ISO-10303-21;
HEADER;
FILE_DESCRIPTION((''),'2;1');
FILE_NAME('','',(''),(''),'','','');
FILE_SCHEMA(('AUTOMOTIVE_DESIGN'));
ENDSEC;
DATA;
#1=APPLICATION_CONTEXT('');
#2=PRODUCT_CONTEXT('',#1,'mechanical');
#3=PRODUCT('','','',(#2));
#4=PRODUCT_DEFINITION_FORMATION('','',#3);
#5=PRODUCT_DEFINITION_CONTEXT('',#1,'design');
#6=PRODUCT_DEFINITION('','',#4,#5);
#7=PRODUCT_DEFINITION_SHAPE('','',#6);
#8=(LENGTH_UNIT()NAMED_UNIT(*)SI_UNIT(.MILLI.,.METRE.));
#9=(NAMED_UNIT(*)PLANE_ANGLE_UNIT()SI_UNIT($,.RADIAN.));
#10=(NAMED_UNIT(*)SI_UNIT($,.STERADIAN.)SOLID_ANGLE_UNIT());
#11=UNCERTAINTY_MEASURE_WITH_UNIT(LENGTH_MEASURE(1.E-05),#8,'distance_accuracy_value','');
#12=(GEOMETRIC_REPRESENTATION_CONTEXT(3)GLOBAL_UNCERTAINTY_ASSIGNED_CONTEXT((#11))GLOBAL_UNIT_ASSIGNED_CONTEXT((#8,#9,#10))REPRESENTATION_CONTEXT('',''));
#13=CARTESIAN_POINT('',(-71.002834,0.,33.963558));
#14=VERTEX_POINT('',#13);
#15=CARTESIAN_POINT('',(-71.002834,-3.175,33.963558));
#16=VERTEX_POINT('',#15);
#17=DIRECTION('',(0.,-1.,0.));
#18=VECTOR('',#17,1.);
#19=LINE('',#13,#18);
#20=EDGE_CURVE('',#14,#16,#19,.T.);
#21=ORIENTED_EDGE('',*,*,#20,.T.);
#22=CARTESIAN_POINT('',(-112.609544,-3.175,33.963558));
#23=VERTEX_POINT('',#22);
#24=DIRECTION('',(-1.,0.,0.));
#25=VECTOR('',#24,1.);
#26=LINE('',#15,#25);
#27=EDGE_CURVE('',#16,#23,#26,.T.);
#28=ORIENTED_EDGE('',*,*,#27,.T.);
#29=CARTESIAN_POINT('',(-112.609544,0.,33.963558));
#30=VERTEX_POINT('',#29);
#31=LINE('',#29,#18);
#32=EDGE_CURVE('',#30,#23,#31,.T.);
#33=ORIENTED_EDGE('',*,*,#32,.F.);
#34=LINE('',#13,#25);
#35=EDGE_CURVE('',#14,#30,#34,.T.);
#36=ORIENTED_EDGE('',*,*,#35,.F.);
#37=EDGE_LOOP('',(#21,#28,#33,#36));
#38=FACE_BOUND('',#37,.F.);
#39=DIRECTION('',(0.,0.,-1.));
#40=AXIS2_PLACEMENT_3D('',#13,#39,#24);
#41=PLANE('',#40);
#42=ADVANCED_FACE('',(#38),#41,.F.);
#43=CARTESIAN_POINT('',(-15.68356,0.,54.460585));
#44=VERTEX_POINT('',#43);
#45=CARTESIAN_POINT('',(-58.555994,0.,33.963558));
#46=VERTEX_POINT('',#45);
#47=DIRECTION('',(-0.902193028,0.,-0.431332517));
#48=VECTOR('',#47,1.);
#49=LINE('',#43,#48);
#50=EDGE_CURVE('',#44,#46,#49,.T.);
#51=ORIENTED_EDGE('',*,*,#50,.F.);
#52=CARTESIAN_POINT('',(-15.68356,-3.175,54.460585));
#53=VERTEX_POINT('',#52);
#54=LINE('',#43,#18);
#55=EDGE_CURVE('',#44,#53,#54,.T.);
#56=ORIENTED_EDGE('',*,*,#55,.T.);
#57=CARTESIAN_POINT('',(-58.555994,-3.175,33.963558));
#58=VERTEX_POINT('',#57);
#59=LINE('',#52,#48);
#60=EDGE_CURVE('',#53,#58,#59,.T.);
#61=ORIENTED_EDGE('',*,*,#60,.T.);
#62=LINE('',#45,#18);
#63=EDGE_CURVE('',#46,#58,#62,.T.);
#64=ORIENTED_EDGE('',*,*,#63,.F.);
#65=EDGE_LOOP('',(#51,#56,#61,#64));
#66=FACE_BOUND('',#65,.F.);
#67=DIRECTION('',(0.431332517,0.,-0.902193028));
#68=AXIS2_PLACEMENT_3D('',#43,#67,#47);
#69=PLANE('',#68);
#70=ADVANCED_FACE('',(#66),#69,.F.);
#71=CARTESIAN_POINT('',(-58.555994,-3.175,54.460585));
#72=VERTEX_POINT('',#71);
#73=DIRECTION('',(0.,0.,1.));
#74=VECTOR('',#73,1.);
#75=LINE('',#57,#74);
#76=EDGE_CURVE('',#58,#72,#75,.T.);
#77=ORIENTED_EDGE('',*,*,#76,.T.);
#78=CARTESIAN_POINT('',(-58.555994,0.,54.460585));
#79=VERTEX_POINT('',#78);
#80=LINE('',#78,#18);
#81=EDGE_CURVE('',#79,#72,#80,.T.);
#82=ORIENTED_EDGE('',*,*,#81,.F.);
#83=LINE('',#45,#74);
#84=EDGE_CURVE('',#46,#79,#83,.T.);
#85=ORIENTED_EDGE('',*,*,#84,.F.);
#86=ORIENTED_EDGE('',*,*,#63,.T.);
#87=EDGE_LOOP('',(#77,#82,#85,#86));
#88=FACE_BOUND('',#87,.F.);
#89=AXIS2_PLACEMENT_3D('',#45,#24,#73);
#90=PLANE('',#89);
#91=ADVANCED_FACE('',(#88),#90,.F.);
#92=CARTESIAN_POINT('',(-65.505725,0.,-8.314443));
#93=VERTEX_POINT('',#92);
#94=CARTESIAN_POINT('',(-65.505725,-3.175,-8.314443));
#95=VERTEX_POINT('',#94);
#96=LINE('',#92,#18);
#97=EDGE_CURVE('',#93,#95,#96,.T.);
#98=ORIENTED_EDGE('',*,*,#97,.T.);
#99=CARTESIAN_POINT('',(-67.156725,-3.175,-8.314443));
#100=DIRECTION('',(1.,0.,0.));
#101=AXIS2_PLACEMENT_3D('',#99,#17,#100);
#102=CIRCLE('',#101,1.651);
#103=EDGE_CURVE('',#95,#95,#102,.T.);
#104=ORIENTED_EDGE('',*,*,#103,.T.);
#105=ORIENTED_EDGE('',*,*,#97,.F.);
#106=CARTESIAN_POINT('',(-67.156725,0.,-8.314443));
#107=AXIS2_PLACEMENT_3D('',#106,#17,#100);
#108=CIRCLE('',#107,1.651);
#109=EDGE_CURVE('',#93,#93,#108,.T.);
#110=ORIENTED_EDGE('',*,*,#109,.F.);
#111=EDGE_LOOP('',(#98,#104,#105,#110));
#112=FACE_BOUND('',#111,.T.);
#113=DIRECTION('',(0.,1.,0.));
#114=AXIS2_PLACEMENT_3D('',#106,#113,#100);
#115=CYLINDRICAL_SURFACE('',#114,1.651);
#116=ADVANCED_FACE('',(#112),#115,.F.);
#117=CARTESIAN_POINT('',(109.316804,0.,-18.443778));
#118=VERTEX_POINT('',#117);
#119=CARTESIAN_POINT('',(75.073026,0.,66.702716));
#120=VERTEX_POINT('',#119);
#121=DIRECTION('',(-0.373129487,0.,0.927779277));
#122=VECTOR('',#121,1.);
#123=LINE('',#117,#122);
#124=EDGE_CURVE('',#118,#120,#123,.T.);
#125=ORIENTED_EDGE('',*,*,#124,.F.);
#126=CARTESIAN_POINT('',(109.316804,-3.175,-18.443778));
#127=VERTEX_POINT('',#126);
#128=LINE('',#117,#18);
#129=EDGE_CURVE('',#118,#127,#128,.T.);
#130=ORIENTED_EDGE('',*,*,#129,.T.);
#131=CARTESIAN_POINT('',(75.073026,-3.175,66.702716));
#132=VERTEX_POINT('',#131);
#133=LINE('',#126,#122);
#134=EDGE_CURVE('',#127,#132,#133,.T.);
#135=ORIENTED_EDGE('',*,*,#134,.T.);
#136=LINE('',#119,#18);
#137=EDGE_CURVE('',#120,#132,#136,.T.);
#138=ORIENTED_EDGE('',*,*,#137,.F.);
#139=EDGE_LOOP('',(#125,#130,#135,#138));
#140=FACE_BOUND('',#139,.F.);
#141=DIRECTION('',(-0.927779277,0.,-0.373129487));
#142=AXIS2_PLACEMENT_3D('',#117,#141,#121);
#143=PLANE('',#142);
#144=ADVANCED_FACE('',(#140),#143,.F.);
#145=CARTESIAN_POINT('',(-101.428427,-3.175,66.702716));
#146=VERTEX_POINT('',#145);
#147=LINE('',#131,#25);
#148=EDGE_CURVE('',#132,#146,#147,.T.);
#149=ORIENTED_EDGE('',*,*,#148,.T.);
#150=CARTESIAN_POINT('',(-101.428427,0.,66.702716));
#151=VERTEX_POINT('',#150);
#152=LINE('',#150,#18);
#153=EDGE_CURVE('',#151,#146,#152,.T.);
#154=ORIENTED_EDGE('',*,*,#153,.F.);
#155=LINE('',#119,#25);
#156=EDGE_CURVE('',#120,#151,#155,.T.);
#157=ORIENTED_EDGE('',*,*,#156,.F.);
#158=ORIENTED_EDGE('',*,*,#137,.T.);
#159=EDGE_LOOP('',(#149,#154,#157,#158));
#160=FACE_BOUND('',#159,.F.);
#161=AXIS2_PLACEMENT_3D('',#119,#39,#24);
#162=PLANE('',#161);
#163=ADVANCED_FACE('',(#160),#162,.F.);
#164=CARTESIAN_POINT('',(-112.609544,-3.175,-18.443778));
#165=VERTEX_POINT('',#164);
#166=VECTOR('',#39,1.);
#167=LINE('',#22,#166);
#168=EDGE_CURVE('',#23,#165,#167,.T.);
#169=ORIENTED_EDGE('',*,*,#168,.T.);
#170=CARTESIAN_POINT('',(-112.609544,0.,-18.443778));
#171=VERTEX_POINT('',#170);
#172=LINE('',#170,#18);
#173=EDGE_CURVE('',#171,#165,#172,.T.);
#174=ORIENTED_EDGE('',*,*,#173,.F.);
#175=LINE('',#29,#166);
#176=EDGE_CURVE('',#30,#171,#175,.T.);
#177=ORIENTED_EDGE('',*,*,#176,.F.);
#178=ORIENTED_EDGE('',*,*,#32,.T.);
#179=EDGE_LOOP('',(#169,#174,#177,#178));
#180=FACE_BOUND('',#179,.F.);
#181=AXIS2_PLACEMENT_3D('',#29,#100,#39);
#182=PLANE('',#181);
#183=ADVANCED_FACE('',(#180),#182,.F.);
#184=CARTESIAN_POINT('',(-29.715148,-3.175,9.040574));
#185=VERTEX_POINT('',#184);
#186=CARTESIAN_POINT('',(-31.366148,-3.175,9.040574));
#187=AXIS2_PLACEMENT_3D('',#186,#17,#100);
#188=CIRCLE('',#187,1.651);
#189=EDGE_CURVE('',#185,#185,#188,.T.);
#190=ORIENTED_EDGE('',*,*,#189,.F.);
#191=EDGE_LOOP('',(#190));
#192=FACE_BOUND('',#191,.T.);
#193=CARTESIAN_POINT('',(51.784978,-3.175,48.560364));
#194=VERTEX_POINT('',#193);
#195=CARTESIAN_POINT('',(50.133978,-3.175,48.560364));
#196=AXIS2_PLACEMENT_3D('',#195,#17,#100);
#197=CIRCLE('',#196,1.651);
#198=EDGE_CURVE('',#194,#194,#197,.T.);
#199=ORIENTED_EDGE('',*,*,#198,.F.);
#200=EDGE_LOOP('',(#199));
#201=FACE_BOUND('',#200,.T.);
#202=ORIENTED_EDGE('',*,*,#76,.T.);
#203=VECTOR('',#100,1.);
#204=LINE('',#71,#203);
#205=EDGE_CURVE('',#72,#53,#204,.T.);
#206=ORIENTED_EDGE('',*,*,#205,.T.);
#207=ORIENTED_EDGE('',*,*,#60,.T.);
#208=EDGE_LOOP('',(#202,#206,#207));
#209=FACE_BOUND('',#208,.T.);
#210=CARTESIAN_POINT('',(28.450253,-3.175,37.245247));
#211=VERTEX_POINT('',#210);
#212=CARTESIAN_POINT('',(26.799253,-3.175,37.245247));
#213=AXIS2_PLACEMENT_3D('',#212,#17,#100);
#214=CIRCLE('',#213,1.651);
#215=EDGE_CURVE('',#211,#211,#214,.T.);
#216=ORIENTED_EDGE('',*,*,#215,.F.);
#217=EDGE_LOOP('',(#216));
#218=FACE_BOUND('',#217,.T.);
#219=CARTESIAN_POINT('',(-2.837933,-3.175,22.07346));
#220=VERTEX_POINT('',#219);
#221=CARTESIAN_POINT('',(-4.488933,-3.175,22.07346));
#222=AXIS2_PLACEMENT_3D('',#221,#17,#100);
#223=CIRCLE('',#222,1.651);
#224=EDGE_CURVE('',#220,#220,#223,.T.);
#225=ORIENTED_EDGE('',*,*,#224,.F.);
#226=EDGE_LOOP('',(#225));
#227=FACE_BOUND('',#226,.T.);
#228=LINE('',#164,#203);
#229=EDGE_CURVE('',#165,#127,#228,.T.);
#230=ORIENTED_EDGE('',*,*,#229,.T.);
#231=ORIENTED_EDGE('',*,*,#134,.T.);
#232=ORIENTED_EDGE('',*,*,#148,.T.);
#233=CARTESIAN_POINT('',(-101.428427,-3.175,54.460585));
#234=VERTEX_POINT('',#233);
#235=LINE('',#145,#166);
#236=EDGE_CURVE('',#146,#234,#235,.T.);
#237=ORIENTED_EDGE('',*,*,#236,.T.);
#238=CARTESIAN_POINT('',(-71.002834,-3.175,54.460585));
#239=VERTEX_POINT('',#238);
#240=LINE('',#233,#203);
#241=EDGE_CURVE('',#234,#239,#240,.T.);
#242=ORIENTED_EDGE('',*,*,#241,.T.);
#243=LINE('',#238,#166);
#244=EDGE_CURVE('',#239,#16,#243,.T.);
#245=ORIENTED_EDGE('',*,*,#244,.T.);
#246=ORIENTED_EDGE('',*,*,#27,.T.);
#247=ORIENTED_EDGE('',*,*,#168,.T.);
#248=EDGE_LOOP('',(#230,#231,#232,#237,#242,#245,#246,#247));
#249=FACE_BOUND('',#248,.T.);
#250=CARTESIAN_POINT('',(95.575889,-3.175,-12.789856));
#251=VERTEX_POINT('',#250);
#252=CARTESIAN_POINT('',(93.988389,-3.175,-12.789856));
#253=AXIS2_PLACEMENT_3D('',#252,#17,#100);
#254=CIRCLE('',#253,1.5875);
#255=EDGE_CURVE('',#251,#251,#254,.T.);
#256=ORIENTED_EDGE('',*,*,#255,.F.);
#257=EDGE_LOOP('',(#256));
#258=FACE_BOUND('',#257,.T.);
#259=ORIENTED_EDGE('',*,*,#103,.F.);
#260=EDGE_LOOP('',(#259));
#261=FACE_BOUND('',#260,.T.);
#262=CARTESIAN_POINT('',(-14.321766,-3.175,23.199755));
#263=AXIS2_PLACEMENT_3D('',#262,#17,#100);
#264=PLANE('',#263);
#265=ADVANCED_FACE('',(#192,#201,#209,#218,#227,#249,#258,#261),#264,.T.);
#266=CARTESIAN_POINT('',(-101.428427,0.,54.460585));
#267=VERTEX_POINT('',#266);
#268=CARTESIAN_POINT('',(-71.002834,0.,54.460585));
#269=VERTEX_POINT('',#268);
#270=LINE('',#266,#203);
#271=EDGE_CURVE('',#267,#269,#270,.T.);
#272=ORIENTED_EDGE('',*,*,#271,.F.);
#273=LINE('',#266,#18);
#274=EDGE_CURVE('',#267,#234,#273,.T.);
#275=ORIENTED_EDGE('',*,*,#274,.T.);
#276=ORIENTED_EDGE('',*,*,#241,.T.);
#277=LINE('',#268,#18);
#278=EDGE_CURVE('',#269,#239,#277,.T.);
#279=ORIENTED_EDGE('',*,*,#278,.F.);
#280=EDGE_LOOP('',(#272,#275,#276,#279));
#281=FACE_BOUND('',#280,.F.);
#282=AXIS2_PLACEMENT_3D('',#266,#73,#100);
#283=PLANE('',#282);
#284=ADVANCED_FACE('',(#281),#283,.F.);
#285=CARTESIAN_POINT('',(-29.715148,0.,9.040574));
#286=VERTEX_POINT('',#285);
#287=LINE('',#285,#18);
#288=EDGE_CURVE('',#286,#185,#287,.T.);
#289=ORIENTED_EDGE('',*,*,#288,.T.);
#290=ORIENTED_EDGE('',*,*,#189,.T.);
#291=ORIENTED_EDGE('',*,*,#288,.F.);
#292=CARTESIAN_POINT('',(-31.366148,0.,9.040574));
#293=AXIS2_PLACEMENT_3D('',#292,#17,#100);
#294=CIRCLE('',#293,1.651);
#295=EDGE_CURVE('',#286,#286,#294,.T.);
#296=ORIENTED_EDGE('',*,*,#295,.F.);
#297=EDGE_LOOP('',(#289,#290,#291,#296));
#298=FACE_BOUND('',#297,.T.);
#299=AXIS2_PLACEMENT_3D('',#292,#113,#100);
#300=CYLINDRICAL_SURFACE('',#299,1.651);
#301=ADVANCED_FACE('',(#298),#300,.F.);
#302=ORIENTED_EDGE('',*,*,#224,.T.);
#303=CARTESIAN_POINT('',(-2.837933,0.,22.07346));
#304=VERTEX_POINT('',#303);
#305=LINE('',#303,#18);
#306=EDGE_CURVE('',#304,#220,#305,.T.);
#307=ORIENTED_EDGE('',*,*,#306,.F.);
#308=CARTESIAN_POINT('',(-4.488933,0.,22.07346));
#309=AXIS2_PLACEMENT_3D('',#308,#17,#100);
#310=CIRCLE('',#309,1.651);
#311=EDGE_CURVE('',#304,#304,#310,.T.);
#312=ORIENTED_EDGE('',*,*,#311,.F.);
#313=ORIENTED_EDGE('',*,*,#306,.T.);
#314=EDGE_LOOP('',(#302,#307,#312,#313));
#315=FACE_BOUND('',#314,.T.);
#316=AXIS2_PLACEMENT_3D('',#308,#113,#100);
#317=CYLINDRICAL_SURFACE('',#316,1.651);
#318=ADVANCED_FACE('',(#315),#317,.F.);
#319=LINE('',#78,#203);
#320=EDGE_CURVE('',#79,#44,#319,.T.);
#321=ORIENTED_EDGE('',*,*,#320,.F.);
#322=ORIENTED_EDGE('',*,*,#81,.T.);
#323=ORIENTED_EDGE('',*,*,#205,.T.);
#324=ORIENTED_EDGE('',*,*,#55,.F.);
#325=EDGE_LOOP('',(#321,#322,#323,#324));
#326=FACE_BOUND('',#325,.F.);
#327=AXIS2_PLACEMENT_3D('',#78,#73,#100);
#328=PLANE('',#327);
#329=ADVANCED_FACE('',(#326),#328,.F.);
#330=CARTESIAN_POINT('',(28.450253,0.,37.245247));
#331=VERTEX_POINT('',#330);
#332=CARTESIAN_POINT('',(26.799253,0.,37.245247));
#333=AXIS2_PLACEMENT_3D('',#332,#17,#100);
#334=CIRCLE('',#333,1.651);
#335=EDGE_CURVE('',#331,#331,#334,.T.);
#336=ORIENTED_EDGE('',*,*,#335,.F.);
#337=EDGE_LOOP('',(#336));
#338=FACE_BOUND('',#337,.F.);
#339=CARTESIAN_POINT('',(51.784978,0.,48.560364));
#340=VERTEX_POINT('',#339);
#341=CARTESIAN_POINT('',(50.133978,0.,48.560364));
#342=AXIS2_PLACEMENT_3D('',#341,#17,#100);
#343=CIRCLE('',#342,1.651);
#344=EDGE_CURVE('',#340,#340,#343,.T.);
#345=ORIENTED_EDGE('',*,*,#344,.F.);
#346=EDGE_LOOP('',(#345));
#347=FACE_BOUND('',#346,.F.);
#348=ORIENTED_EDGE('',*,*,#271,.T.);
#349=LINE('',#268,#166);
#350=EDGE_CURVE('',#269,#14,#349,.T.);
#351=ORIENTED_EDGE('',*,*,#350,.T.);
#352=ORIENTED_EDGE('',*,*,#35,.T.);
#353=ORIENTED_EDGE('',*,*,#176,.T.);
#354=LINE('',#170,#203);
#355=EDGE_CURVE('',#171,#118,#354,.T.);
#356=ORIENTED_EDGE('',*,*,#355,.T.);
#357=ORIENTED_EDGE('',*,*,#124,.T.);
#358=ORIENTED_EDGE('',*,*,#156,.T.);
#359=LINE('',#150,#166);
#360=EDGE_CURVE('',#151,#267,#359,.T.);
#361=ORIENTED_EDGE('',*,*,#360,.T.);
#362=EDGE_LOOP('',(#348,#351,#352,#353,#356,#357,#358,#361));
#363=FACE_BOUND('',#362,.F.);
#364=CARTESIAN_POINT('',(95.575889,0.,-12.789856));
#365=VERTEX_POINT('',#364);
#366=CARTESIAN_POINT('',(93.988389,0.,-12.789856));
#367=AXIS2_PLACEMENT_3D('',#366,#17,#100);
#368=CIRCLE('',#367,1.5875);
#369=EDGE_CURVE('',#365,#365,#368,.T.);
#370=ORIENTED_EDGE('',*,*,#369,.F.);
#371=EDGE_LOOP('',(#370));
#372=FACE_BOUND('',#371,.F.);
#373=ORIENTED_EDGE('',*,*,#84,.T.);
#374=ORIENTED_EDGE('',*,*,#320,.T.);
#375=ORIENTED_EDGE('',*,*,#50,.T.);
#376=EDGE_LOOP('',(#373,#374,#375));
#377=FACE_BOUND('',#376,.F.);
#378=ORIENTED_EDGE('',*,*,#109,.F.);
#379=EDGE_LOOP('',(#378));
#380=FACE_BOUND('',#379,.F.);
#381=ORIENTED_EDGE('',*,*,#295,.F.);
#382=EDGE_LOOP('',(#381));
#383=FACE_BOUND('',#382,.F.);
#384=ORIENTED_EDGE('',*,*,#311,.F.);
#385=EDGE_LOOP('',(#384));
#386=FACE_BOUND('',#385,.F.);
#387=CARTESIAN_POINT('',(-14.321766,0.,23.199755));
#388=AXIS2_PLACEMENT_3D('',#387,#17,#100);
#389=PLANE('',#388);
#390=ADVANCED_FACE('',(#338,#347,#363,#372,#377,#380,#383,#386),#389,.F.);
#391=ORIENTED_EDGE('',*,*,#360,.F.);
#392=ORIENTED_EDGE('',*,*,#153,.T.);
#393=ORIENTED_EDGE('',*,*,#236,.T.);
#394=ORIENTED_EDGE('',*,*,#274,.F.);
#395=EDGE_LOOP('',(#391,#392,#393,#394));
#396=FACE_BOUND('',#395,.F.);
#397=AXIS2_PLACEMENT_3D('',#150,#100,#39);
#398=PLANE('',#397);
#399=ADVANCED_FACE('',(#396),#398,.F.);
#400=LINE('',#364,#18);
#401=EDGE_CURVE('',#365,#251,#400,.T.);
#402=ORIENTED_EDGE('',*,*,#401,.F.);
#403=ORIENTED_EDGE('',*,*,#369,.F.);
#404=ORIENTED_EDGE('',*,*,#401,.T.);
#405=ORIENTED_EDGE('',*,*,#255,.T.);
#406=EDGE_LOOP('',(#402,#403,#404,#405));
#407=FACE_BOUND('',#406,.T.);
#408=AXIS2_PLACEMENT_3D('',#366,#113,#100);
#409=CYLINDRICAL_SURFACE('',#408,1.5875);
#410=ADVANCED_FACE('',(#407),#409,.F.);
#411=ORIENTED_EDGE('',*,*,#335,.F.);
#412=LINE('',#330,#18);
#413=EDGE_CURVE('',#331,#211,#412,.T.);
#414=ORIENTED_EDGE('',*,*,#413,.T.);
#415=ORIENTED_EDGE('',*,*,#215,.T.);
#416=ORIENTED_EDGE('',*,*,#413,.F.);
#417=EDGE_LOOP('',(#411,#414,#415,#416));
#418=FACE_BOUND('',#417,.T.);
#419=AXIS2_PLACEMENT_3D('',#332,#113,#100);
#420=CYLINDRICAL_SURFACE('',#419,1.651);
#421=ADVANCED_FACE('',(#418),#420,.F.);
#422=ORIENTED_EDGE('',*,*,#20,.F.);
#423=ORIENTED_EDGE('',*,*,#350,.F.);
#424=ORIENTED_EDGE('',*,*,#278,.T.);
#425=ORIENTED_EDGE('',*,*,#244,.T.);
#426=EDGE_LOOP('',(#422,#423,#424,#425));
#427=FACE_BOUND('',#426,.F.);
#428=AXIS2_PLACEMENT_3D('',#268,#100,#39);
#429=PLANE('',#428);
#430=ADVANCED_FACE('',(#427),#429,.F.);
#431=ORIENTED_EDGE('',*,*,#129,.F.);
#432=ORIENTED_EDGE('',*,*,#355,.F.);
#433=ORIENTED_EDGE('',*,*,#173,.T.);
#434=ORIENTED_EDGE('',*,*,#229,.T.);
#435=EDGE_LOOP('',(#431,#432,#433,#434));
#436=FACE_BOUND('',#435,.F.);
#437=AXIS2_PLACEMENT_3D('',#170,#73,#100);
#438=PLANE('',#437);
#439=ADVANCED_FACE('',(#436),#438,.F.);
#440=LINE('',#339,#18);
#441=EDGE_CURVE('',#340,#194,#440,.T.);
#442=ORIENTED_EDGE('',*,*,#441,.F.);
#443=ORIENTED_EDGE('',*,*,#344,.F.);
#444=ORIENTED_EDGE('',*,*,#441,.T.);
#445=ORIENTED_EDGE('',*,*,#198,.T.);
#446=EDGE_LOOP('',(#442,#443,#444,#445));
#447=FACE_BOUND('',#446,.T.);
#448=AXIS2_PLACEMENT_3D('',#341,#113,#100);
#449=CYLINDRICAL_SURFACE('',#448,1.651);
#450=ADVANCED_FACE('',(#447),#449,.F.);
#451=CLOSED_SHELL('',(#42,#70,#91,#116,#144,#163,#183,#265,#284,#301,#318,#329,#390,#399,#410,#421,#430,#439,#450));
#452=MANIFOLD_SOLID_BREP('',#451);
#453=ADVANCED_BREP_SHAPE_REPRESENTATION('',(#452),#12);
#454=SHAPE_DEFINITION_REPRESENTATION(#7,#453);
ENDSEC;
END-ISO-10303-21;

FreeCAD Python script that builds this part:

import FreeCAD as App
import Part
import Sketcher
from FreeCAD import Vector
Q = App.Units.Quantity


def add_polygon(sketch, points):
    """Adds a closed chain of lines whose ends are joined by coincident constraints."""
    first, n = sketch.GeometryCount, len(points)
    for a, b in zip(points, points[1:] + points[:1]):
        sketch.addGeometry(Part.LineSegment(App.Vector(*a, 0), App.Vector(*b, 0)), False)
    for i in range(n):
        sketch.addConstraint(Sketcher.Constraint("Coincident", first + i, 2, first + (i + 1) % n, 1))

doc = App.newDocument("Part")
params = doc.addObject("Spreadsheet::Sheet", "Params")
for row, (alias, value) in enumerate([
    ("sketch1_diameter", "0.13 in"),
    ("sketch1_diameter2", "0.125 in"),
    ("pad1_length", "0.125 in"),
], start=1):
    params.set(f"A{row}", alias)
    params.set(f"B{row}", "=" + value)
    params.setAlias(f"B{row}", alias)

body = doc.addObject("PartDesign::Body", "Body")

# Sketch on XZ plane
sketch1 = body.newObject("Sketcher::SketchObject", "Sketch")
sketch1.AttachmentSupport = (doc.getObject("XZ_Plane"), [""])
sketch1.MapMode = "FlatFace"
add_polygon(sketch1, [(75.1, 66.7), (-101.4, 66.7), (-101.4, 54.5), (-71, 54.5), (-71, 34), (-112.6, 34), (-112.6, -18.4), (109.3, -18.4)])  # lines 0-7
sketch1.addGeometry(Part.Circle(Vector(-67.2, -8.3, 0), Vector(0, 0, 1), 1.7), False)  # 8
sketch1.addGeometry(Part.Circle(Vector(-31.4, 9, 0), Vector(0, 0, 1), 1.7), False)  # 9
sketch1.addGeometry(Part.Circle(Vector(94, -12.8, 0), Vector(0, 0, 1), 1.6), False)  # 10
sketch1.addGeometry(Part.Circle(Vector(-4.5, 22.1, 0), Vector(0, 0, 1), 1.7), False)  # 11
add_polygon(sketch1, [(-15.7, 54.5), (-58.6, 34), (-58.6, 54.5)])  # lines 12-14
sketch1.addGeometry(Part.Circle(Vector(26.8, 37.2, 0), Vector(0, 0, 1), 1.7), False)  # 15
sketch1.addGeometry(Part.Circle(Vector(50.1, 48.6, 0), Vector(0, 0, 1), 1.7), False)  # 16
sketch1.addConstraint(Sketcher.Constraint("Horizontal", 0))
sketch1.addConstraint(Sketcher.Constraint("Vertical", 1))
sketch1.addConstraint(Sketcher.Constraint("Horizontal", 2))
sketch1.addConstraint(Sketcher.Constraint("Vertical", 3))
sketch1.addConstraint(Sketcher.Constraint("Horizontal", 4))
sketch1.addConstraint(Sketcher.Constraint("Vertical", 5))
sketch1.addConstraint(Sketcher.Constraint("Horizontal", 6))
sketch1.addConstraint(Sketcher.Constraint("Vertical", 13))
sketch1.addConstraint(Sketcher.Constraint("Horizontal", 14))
sketch1.addConstraint(Sketcher.Constraint("Equal", 8, 9))
sketch1.addConstraint(Sketcher.Constraint("Equal", 9, 11))
sketch1.addConstraint(Sketcher.Constraint("Equal", 11, 15))
sketch1.addConstraint(Sketcher.Constraint("Equal", 15, 16))
sketch1.addConstraint(Sketcher.Constraint("Horizontal", 4, 2, 12, 2))
sketch1.addConstraint(Sketcher.Constraint("Horizontal", 2, 2, 13, 2))
sketch1.addConstraint(Sketcher.Constraint("Diameter", 8, Q("0.13 in")))
sketch1.addConstraint(Sketcher.Constraint("Diameter", 10, Q("0.125 in")))
sketch1.addConstraint(Sketcher.Constraint("DistanceX", 4, 2, 4, 1, 41.60671))
sketch1.addConstraint(Sketcher.Constraint("DistanceX", 6, 1, 6, 2, 221.926348))
sketch1.addConstraint(Sketcher.Constraint("DistanceY", 1, 2, 1, 1, 12.242131))
sketch1.addConstraint(Sketcher.Constraint("DistanceX", 9, 3, 15, 3, 58.165401))
sketch1.addConstraint(Sketcher.Constraint("DistanceX", 2, 2, 11, 3, 66.513901))
sketch1.addConstraint(Sketcher.Constraint("DistanceY", 8, 3, 3, 2, 42.278001))
sketch1.addConstraint(Sketcher.Constraint("DistanceX", 0, 2, 0, 1, 176.501453))
sketch1.addConstraint(Sketcher.Constraint("DistanceX", 2, 1, 2, 2, 30.425593))
sketch1.addConstraint(Sketcher.Constraint("DistanceX", 14, 1, 14, 2, 42.872434))
sketch1.addConstraint(Sketcher.Constraint("DistanceY", 3, 2, 3, 1, 20.497027))
sketch1.addConstraint(Sketcher.Constraint("DistanceY", 5, 2, 5, 1, 52.407336))
sketch1.addConstraint(Sketcher.Constraint("DistanceX", -1, 1, 10, 3, 93.988389))
sketch1.addConstraint(Sketcher.Constraint("DistanceY", -1, 1, 11, 3, 22.07346))
sketch1.addConstraint(Sketcher.Constraint("DistanceX", 14, 2, -1, 1, 15.68356))
sketch1.addConstraint(Sketcher.Constraint("DistanceY", 10, 3, 9, 3, 21.83043))
sketch1.addConstraint(Sketcher.Constraint("DistanceX", 8, 3, 11, 3, 62.667792))
sketch1.addConstraint(Sketcher.Constraint("DistanceX", 11, 3, 10, 3, 98.477322))
sketch1.addConstraint(Sketcher.Constraint("DistanceY", 8, 3, 15, 3, 45.55969))
sketch1.addConstraint(Sketcher.Constraint("DistanceX", 11, 3, 16, 3, 54.622911))
sketch1.addConstraint(Sketcher.Constraint("DistanceY", 10, 3, 16, 3, 61.35022))
sketch1.addConstraint(Sketcher.Constraint("DistanceX", 0, 2, 9, 3, 70.062279))
sketch1.addConstraint(Sketcher.Constraint("DistanceY", 9, 3, 0, 2, 57.662142))
sketch1.addConstraint(Sketcher.Constraint("DistanceY", 8, 3, -1, 1, 8.314443))
sketch1.setExpression("Constraints[26]", "Params.sketch1_diameter")
sketch1.setExpression("Constraints[27]", "Params.sketch1_diameter2")
pad1 = body.newObject("PartDesign::Pad", "Pad")
pad1.Profile = sketch1
pad1.setExpression("Length", "Params.pad1_length")

doc.recompute()
